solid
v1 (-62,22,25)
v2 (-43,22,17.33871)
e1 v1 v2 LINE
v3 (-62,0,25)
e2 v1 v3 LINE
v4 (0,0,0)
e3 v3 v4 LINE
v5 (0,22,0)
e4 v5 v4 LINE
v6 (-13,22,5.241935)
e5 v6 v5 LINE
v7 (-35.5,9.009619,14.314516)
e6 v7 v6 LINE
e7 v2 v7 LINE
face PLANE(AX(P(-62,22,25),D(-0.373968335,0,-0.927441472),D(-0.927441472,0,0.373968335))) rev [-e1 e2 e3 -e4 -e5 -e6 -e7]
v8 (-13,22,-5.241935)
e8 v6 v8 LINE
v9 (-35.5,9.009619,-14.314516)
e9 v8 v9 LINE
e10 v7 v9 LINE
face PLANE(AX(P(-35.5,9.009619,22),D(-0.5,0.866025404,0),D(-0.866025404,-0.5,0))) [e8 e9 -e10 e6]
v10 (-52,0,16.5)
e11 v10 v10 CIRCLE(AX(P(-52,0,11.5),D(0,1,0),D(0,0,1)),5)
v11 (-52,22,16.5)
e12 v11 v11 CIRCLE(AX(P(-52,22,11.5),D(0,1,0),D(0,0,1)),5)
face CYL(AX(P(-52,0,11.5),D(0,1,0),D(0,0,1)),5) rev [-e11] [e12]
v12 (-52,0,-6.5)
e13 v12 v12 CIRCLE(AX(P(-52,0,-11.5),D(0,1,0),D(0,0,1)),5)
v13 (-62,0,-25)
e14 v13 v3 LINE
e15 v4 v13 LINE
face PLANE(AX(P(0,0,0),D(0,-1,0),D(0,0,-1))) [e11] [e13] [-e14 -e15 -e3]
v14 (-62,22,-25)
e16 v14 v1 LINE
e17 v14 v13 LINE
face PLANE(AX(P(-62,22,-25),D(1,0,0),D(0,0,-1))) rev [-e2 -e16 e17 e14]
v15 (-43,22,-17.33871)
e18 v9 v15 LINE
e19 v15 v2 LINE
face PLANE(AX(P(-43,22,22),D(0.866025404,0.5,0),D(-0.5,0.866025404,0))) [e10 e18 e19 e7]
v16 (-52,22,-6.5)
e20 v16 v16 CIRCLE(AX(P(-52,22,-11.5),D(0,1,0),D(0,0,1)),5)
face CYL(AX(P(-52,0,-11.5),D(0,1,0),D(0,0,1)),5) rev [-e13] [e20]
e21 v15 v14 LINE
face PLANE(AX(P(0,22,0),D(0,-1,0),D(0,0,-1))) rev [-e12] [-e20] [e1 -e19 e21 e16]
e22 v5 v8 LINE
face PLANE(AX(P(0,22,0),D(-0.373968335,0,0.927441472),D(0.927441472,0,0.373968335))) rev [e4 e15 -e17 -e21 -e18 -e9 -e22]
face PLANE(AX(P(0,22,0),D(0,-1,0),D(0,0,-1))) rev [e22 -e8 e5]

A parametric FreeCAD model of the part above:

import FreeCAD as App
import Part
import Sketcher
from FreeCAD import Vector
Q = App.Units.Quantity


def add_polygon(sketch, points):
    """Adds a closed chain of lines whose ends are joined by coincident constraints."""
    first, n = sketch.GeometryCount, len(points)
    for a, b in zip(points, points[1:] + points[:1]):
        sketch.addGeometry(Part.LineSegment(App.Vector(*a, 0), App.Vector(*b, 0)), False)
    for i in range(n):
        sketch.addConstraint(Sketcher.Constraint("Coincident", first + i, 2, first + (i + 1) % n, 1))

doc = App.newDocument("Part")
body = doc.addObject("PartDesign::Body", "Body")

sketch1 = body.newObject("Sketcher::SketchObject", "Sketch")
sketch1.AttachmentSupport = (doc.getObject("XZ_Plane"), [""])
sketch1.MapMode = "FlatFace"
add_polygon(sketch1, [(0, 0), (-62, -25), (-62, 25)])
sketch1.addConstraint(Sketcher.Constraint("Vertical", 1))
sketch1.addConstraint(Sketcher.Constraint("Coincident", 2, 2, -1, 1))
sketch1.addConstraint(Sketcher.Constraint("Equal", 0, 2))
sketch1.addConstraint(Sketcher.Constraint("DistanceY", 1, 1, 1, 2, 50.0))
sketch1.addConstraint(Sketcher.Constraint("DistanceX", 0, 2, -1, 1, 62.0))
pad1 = body.newObject("PartDesign::Pad", "Pad")
pad1.Profile = sketch1
pad1.Length = 22
pad1.Reversed = True

sketch2 = body.newObject("Sketcher::SketchObject", "Sketch001")
sketch2.AttachmentSupport = (doc.getObject("XY_Plane"), [""])
sketch2.MapMode = "FlatFace"
add_polygon(sketch2, [(-36, 9), (-13, 22), (-43, 22)])
sketch2.addConstraint(Sketcher.Constraint("Horizontal", 1))
sketch2.addConstraint(Sketcher.Constraint("Perpendicular", 0, 2))
sketch2.addConstraint(Sketcher.Constraint("DistanceX", 1, 2, 1, 1, 30.0))
sketch2.addConstraint(Sketcher.Constraint("Angle", 0, Q("30 deg")))
sketch2.addConstraint(Sketcher.Constraint("DistanceX", 0, 2, -1, 1, 13.0))
sketch2.addConstraint(Sketcher.Constraint("DistanceY", -1, 1, 0, 2, 22.0))
pocket1 = body.newObject("PartDesign::Pocket", "Pocket")
pocket1.Profile = sketch2
pocket1.Type = "ThroughAll"
pocket1.Midplane = True

sketch3 = body.newObject("Sketcher::SketchObject", "Sketch002")
sketch3.AttachmentSupport = (doc.getObject("XZ_Plane"), [""])
sketch3.MapMode = "FlatFace"
sketch3.AttachmentOffset = App.Placement(Vector(0, 0, -22), App.Rotation())
sketch3.addGeometry(Part.Circle(Vector(-52, 12, 0), Vector(0, 0, 1), 5), False)
sketch3.addGeometry(Part.Circle(Vector(-52, -12, 0), Vector(0, 0, 1), 5), False)
sketch3.addConstraint(Sketcher.Constraint("Equal", 0, 1))
sketch3.addConstraint(Sketcher.Constraint("Symmetric", 0, 3, 1, 3, -1))
sketch3.addConstraint(Sketcher.Constraint("Diameter", 0, 10.0))
sketch3.addConstraint(Sketcher.Constraint("DistanceX", 0, 3, -1, 1, 52.0))
sketch3.addConstraint(Sketcher.Constraint("DistanceY", 1, 3, 0, 3, 23.0))
pocket2 = body.newObject("PartDesign::Pocket", "Pocket001")
pocket2.Profile = sketch3
pocket2.Length = 22
pocket2.Reversed = True

doc.recompute()
